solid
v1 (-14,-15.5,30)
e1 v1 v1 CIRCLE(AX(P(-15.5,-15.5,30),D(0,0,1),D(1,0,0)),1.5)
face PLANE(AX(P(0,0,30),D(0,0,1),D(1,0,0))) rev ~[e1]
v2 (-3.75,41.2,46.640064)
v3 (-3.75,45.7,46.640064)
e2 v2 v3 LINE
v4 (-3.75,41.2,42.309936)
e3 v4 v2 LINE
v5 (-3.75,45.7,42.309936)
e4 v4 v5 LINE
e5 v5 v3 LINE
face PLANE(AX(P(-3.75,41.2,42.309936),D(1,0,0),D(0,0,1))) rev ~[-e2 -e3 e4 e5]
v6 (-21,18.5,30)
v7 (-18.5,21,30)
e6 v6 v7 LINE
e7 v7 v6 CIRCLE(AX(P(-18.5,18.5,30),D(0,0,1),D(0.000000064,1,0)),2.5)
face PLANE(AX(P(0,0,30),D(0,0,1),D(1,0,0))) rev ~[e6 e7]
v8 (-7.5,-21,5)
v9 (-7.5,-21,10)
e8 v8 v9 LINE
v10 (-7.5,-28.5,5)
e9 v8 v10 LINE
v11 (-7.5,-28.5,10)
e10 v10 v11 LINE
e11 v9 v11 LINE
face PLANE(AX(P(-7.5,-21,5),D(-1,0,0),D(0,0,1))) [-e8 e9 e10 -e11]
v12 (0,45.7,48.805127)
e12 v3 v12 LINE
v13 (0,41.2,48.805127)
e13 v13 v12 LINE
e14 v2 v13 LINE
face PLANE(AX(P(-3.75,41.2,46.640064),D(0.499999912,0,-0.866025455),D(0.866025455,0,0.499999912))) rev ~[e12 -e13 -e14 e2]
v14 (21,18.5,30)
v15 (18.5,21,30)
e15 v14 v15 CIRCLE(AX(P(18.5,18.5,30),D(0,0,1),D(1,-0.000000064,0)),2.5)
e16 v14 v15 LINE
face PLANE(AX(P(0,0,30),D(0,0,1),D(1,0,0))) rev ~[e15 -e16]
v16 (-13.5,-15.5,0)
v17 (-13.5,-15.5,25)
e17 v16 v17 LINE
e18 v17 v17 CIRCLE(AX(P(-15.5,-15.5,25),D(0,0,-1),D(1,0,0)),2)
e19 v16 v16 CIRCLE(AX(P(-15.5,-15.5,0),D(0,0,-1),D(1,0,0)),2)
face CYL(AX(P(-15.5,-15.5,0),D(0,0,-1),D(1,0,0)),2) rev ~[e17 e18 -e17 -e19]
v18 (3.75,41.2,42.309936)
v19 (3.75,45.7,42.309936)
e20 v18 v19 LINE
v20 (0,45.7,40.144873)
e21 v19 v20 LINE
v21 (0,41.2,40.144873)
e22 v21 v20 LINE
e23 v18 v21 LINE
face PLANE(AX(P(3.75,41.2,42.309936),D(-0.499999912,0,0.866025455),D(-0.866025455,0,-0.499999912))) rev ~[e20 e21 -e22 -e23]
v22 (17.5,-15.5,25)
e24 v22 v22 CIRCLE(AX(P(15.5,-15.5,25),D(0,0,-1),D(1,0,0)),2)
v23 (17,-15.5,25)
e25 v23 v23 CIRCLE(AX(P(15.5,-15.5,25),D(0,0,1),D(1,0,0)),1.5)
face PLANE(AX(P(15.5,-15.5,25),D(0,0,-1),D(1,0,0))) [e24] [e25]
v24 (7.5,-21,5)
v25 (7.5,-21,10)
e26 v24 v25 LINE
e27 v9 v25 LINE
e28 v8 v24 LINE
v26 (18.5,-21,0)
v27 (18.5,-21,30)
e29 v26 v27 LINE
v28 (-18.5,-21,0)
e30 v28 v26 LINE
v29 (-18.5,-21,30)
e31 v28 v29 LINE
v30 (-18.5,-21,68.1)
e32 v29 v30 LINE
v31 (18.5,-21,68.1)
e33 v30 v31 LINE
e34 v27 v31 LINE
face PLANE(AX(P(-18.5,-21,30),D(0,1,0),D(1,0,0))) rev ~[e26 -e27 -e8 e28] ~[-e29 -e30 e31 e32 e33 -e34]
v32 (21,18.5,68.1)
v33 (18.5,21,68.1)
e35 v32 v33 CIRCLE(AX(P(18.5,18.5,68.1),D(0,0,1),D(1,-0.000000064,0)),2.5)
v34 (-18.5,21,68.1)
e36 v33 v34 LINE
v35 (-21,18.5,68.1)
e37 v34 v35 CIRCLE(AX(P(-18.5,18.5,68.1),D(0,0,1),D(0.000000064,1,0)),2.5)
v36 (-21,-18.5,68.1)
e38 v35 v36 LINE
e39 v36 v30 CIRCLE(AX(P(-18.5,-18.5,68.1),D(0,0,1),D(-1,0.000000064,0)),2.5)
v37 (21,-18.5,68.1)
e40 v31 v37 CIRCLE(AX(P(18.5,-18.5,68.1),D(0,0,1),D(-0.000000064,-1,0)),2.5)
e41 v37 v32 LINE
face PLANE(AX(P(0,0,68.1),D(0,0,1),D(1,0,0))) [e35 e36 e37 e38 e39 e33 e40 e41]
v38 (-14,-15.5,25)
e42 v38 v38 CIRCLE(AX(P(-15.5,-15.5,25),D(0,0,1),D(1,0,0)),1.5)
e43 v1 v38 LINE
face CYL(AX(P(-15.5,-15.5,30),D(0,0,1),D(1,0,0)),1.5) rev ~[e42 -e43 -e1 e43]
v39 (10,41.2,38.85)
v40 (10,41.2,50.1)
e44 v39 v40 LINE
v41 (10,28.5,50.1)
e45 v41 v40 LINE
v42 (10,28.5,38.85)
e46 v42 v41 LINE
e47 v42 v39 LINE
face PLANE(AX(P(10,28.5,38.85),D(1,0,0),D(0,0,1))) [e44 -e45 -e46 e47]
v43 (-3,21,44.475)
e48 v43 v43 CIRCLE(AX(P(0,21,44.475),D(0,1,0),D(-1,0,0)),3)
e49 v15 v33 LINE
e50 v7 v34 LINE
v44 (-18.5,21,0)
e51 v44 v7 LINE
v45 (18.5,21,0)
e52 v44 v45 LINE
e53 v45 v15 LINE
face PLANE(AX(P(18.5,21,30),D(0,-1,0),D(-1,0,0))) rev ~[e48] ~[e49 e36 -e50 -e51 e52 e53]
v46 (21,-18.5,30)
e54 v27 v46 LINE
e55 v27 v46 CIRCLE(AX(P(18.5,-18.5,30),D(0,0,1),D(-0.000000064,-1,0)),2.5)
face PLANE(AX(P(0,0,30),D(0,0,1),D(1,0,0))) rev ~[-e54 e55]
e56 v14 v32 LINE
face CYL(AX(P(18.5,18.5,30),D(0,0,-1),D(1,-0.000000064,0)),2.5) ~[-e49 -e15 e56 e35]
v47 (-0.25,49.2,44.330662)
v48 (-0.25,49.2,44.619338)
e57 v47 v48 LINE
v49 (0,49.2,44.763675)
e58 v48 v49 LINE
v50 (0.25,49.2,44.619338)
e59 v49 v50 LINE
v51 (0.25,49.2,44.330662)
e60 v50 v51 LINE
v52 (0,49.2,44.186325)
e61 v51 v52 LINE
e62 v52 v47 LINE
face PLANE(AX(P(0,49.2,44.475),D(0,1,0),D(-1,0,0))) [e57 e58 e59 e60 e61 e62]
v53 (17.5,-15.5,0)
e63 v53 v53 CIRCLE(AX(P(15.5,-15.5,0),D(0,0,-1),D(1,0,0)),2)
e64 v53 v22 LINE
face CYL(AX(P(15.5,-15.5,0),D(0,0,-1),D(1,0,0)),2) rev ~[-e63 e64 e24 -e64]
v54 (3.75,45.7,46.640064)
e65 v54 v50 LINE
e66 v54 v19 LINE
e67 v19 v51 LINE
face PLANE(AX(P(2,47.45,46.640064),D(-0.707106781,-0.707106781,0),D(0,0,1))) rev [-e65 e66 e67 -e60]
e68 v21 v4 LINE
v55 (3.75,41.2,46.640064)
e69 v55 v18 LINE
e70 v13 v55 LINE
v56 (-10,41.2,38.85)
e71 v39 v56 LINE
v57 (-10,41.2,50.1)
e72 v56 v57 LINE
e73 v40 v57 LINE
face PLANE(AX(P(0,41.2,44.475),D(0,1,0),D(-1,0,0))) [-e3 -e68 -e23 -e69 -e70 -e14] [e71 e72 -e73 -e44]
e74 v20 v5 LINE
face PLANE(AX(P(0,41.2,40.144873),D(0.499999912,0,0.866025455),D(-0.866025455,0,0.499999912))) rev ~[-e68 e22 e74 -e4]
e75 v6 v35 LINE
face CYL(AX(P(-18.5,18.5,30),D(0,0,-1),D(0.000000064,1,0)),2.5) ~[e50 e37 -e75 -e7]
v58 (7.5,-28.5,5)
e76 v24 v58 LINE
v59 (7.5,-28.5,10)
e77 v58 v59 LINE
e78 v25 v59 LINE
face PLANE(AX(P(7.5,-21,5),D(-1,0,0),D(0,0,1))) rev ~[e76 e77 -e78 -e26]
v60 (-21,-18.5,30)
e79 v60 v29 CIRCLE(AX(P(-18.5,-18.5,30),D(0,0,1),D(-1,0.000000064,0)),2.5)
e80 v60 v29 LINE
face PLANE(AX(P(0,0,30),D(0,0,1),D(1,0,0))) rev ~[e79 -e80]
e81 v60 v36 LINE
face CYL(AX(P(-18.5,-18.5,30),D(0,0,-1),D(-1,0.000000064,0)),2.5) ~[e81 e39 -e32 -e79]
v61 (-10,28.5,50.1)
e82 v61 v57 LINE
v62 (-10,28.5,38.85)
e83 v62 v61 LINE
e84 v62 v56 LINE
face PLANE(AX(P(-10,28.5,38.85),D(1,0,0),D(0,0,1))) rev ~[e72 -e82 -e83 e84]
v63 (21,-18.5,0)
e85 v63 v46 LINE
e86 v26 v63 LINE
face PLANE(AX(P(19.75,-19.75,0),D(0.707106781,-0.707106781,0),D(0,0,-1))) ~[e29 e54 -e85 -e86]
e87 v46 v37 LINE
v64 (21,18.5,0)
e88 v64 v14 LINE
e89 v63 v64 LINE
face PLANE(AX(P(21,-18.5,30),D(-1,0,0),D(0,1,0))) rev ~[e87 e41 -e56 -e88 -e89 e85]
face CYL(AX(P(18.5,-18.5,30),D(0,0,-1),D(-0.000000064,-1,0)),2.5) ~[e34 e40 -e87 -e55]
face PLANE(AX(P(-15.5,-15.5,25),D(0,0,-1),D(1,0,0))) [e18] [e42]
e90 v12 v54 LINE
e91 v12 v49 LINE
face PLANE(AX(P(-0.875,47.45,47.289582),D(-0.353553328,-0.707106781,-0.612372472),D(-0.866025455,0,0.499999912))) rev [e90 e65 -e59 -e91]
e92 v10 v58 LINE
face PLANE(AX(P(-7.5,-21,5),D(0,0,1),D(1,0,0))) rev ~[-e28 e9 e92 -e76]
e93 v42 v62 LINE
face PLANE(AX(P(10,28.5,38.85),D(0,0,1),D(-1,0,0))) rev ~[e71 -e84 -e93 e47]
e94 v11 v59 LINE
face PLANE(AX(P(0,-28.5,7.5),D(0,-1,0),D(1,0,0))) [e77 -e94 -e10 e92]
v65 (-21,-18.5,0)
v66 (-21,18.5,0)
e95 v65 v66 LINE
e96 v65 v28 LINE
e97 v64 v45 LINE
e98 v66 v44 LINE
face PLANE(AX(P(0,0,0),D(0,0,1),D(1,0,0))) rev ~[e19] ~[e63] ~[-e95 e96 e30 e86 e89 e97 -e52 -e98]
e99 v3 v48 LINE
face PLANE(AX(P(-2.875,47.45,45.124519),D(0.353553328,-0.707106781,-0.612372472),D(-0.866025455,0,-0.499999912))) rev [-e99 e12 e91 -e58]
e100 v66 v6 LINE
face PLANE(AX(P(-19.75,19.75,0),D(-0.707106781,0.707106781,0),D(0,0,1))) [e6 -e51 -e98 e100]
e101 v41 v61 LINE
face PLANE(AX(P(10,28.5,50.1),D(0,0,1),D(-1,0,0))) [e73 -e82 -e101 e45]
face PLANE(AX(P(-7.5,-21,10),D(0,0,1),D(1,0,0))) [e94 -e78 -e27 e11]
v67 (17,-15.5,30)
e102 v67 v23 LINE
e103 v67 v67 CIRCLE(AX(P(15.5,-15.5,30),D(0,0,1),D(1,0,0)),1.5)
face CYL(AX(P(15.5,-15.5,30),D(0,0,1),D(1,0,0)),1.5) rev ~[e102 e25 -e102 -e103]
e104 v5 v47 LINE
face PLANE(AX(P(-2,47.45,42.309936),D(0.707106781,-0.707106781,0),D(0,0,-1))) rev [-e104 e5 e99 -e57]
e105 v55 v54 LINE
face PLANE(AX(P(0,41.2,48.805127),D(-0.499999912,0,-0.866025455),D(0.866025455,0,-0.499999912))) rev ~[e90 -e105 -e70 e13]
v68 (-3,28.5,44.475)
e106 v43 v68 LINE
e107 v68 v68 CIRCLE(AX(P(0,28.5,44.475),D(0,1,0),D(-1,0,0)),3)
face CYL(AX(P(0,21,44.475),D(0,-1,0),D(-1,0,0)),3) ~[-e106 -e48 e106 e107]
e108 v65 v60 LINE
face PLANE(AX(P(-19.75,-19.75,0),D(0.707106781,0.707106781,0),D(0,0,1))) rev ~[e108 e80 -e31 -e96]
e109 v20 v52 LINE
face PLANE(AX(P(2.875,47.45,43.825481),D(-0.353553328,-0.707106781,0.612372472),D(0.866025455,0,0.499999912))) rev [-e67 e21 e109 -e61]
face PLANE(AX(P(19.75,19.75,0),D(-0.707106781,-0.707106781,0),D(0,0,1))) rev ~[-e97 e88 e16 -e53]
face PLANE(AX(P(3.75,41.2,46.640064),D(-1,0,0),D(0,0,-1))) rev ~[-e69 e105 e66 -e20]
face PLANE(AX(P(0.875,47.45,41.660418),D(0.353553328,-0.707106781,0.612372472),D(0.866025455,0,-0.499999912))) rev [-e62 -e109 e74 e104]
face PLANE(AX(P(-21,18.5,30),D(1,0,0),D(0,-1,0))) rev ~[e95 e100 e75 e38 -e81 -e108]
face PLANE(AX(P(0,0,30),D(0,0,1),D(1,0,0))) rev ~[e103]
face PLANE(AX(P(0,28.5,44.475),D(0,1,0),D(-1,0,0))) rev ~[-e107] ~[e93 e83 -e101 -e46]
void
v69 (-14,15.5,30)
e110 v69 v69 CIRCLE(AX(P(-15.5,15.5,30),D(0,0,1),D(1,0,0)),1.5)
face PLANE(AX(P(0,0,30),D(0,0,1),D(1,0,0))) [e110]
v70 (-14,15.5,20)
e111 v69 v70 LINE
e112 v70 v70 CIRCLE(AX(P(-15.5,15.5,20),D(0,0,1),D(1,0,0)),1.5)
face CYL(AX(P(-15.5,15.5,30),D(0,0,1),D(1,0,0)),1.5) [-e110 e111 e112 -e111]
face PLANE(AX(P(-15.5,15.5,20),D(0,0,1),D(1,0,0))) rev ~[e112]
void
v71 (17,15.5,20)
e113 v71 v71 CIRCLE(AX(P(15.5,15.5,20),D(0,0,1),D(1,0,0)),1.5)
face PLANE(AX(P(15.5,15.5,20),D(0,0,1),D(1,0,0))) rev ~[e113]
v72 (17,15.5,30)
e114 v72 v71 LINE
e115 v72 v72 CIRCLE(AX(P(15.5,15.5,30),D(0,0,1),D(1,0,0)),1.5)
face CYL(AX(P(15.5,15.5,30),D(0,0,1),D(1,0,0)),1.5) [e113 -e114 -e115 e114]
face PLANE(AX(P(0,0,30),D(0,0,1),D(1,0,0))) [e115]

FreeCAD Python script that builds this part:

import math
import FreeCAD as App
import Part
import Sketcher
from FreeCAD import Vector
Q = App.Units.Quantity


def edges_at(feature, points):
    """Names of the edges that pass closest to the given points."""
    edges = feature.Shape.Edges
    near = lambda p: min(range(len(edges)), key=lambda i: edges[i].distToShape(Part.Vertex(*p))[0])
    return sorted({f"Edge{near(p) + 1}" for p in points})


def add_polygon(sketch, points):
    """Adds a closed chain of lines whose ends are joined by coincident constraints."""
    first, n = sketch.GeometryCount, len(points)
    for a, b in zip(points, points[1:] + points[:1]):
        sketch.addGeometry(Part.LineSegment(App.Vector(*a, 0), App.Vector(*b, 0)), False)
    for i in range(n):
        sketch.addConstraint(Sketcher.Constraint("Coincident", first + i, 2, first + (i + 1) % n, 1))

doc = App.newDocument("Part")
body = doc.addObject("PartDesign::Body", "Body")

sketch1 = body.newObject("Sketcher::SketchObject", "Sketch")
sketch1.AttachmentSupport = (doc.getObject("XY_Plane"), [""])
sketch1.MapMode = "FlatFace"
add_polygon(sketch1, [(-21, 21), (-21, -21), (21, -21), (21, 21)])
sketch1.addConstraint(Sketcher.Constraint("Vertical", 0))
sketch1.addConstraint(Sketcher.Constraint("Horizontal", 1))
sketch1.addConstraint(Sketcher.Constraint("Vertical", 2))
sketch1.addConstraint(Sketcher.Constraint("Horizontal", 3))
sketch1.addConstraint(Sketcher.Constraint("Symmetric", 0, 2, 2, 2, -1, 1))
sketch1.addConstraint(Sketcher.Constraint("Equal", 3, 0))
sketch1.addConstraint(Sketcher.Constraint("DistanceX", 1, 1, 1, 2, Q("42 mm")))
pad1 = body.newObject("PartDesign::Pad", "Pad")
pad1.Profile = sketch1
pad1.Length = 30
doc.recompute()

chamfer = body.newObject("PartDesign::Chamfer", "Chamfer")
chamfer.Base = (pad1, edges_at(pad1, [
    (-21, -21, 15),
    (21, -21, 15),
    (21, 21, 15),
    (-21, 21, 15),
]))
chamfer.Size = 2.5

sketch2 = body.newObject("Sketcher::SketchObject", "Sketch001")
sketch2.AttachmentSupport = (doc.getObject("XY_Plane"), [""])
sketch2.MapMode = "FlatFace"
sketch2.AttachmentOffset = App.Placement(Vector(0, 0, 30), App.Rotation())
sketch2.addGeometry(Part.Circle(Vector(-15.5, 15.5, 0), Vector(0, 0, 1), 1.5), False)
sketch2.addGeometry(Part.Circle(Vector(15.5, 15.5, 0), Vector(0, 0, 1), 1.5), False)
sketch2.addGeometry(Part.Circle(Vector(15.5, -15.5, 0), Vector(0, 0, 1), 1.5), False)
sketch2.addGeometry(Part.Circle(Vector(-15.5, -15.5, 0), Vector(0, 0, 1), 1.5), False)
sketch2.addConstraint(Sketcher.Constraint("Equal", 0, 1))
sketch2.addConstraint(Sketcher.Constraint("Equal", 1, 2))
sketch2.addConstraint(Sketcher.Constraint("Equal", 2, 3))
sketch2.addConstraint(Sketcher.Constraint("Symmetric", 0, 3, 2, 3, -1, 1))
sketch2.addConstraint(Sketcher.Constraint("Symmetric", 1, 3, 3, 3, -1, 1))
sketch2.addConstraint(Sketcher.Constraint("Symmetric", 0, 3, 1, 3, -2))
sketch2.addConstraint(Sketcher.Constraint("Diameter", 0, Q("3 mm")))
sketch2.addConstraint(Sketcher.Constraint("DistanceX", 0, 3, 1, 3, Q("31 mm")))
sketch2.addConstraint(Sketcher.Constraint("DistanceY", 2, 3, 1, 3, Q("31 mm")))
pocket1 = body.newObject("PartDesign::Pocket", "Pocket")
pocket1.Profile = sketch2
pocket1.Length = 10

sketch3 = body.newObject("Sketcher::SketchObject", "Sketch002")
sketch3.AttachmentSupport = (doc.getObject("XY_Plane"), [""])
sketch3.MapMode = "FlatFace"
sketch3.AttachmentOffset = App.Placement(Vector(0, 0, 30), App.Rotation())
sketch3.addGeometry(Part.Circle(Vector(0, 0, 0), Vector(0, 0, 1), 11), False)
sketch3.addConstraint(Sketcher.Constraint("Coincident", 0, 3, -1, 1))
sketch3.addConstraint(Sketcher.Constraint("Diameter", 0, Q("22 mm")))
pad2 = body.newObject("PartDesign::Pad", "Pad001")
pad2.Profile = sketch3
pad2.Length = 2

sketch4 = body.newObject("Sketcher::SketchObject", "Sketch003")
sketch4.AttachmentSupport = (doc.getObject("XY_Plane"), [""])
sketch4.MapMode = "FlatFace"
sketch4.AttachmentOffset = App.Placement(Vector(0, 0, 32), App.Rotation())
sketch4.addGeometry(Part.LineSegment(Vector(2.193171, 1.2, 0), Vector(-2.193171, 1.2, 0)), False)
sketch4.addGeometry(Part.ArcOfCircle(Part.Circle(Vector(0, 0, 0), Vector(0, 0, 1), 2.5), math.radians(151.314593), math.radians(388.685407)), False)
sketch4.addConstraint(Sketcher.Constraint("Coincident", 0, 1, 1, 2))
sketch4.addConstraint(Sketcher.Constraint("Coincident", 1, 1, 0, 2))
sketch4.addConstraint(Sketcher.Constraint("Horizontal", 0))
sketch4.addConstraint(Sketcher.Constraint("Coincident", 1, 3, -1, 1))
sketch4.addConstraint(Sketcher.Constraint("Radius", 1, Q("2.5 mm")))
sketch4.addConstraint(Sketcher.Constraint("DistanceY", -1, 1, 0, 1, Q("1.2 mm")))
pad3 = body.newObject("PartDesign::Pad", "Pad002")
pad3.Profile = sketch4
pad3.Length = 24

sketch5 = body.newObject("Sketcher::SketchObject", "Sketch004")
sketch5.AttachmentSupport = (doc.getObject("XZ_Plane"), [""])
sketch5.MapMode = "FlatFace"
sketch5.AttachmentOffset = App.Placement(Vector(0, 0, 21), App.Rotation())
add_polygon(sketch5, [(-7.5, 10), (-7.5, 5), (7.5, 5), (7.5, 10)])
sketch5.addConstraint(Sketcher.Constraint("Vertical", 0))
sketch5.addConstraint(Sketcher.Constraint("Horizontal", 1))
sketch5.addConstraint(Sketcher.Constraint("Vertical", 2))
sketch5.addConstraint(Sketcher.Constraint("Horizontal", 3))
sketch5.addConstraint(Sketcher.Constraint("DistanceX", 1, 1, 1, 2, Q("15 mm")))
sketch5.addConstraint(Sketcher.Constraint("DistanceY", 0, 2, 0, 1, Q("5 mm")))
sketch5.addConstraint(Sketcher.Constraint("DistanceY", -1, 1, 0, 2, Q("5 mm")))
sketch5.addConstraint(Sketcher.Constraint("DistanceX", 0, 2, -1, 1, Q("7.5 mm")))
pad4 = body.newObject("PartDesign::Pad", "Pad003")
pad4.Profile = sketch5
pad4.Length = 7.5

sketch6 = body.newObject("Sketcher::SketchObject", "Sketch005")
sketch6.AttachmentSupport = (doc.getObject("XY_Plane"), [""])
sketch6.MapMode = "FlatFace"
sketch6.AttachmentOffset = App.Placement(Vector(0, 0, 30), App.Rotation())
sketch6.addGeometry(Part.LineSegment(Vector(-18.5, -21, 0), Vector(18.5, -21, 0)), False)
sketch6.addGeometry(Part.ArcOfCircle(Part.Circle(Vector(18.5, -18.5, 0), Vector(0, 0, 1), 2.5), math.radians(-90.000004), math.radians(0.000004)), False)
sketch6.addGeometry(Part.LineSegment(Vector(21, -18.5, 0), Vector(21, 18.5, 0)), False)
sketch6.addGeometry(Part.ArcOfCircle(Part.Circle(Vector(18.5, 18.5, 0), Vector(0, 0, 1), 2.5), math.radians(-0.000004), math.radians(90.000004)), False)
sketch6.addGeometry(Part.LineSegment(Vector(18.5, 21, 0), Vector(-18.5, 21, 0)), False)
sketch6.addGeometry(Part.ArcOfCircle(Part.Circle(Vector(-18.5, 18.5, 0), Vector(0, 0, 1), 2.5), math.radians(89.999996), math.radians(180.000004)), False)
sketch6.addGeometry(Part.LineSegment(Vector(-21, 18.5, 0), Vector(-21, -18.5, 0)), False)
sketch6.addGeometry(Part.ArcOfCircle(Part.Circle(Vector(-18.5, -18.5, 0), Vector(0, 0, 1), 2.5), math.radians(179.999996), math.radians(270.000004)), False)
sketch6.addConstraint(Sketcher.Constraint("Tangent", 0, 2, 1, 1))
sketch6.addConstraint(Sketcher.Constraint("Tangent", 1, 2, 2, 1))
sketch6.addConstraint(Sketcher.Constraint("Tangent", 2, 2, 3, 1))
sketch6.addConstraint(Sketcher.Constraint("Tangent", 3, 2, 4, 1))
sketch6.addConstraint(Sketcher.Constraint("Tangent", 4, 2, 5, 1))
sketch6.addConstraint(Sketcher.Constraint("Tangent", 5, 2, 6, 1))
sketch6.addConstraint(Sketcher.Constraint("Tangent", 6, 2, 7, 1))
sketch6.addConstraint(Sketcher.Constraint("Tangent", 7, 2, 0, 1))
sketch6.addConstraint(Sketcher.Constraint("Horizontal", 0))
sketch6.addConstraint(Sketcher.Constraint("Vertical", 2))
sketch6.addConstraint(Sketcher.Constraint("Horizontal", 4))
sketch6.addConstraint(Sketcher.Constraint("Vertical", 6))
sketch6.addConstraint(Sketcher.Constraint("Equal", 1, 3))
sketch6.addConstraint(Sketcher.Constraint("Equal", 3, 5))
sketch6.addConstraint(Sketcher.Constraint("Equal", 5, 7))
sketch6.addConstraint(Sketcher.Constraint("Symmetric", 1, 3, 5, 3, -1, 1))
sketch6.addConstraint(Sketcher.Constraint("Equal", 4, 2))
sketch6.addConstraint(Sketcher.Constraint("Radius", 1, Q("2.5 mm")))
sketch6.addConstraint(Sketcher.Constraint("DistanceX", 0, 1, 0, 2, Q("37 mm")))
pad5 = body.newObject("PartDesign::Pad", "Pad004")
pad5.Profile = sketch6
pad5.Length = 38.1

sketch7 = body.newObject("Sketcher::SketchObject", "Sketch006")
sketch7.AttachmentSupport = (doc.getObject("XZ_Plane"), [""])
sketch7.MapMode = "FlatFace"
sketch7.AttachmentOffset = App.Placement(Vector(0, 0, -21), App.Rotation())
sketch7.addGeometry(Part.Circle(Vector(0, 44.475, 0), Vector(0, 0, 1), 3), False)
sketch7.addConstraint(Sketcher.Constraint("PointOnObject", 0, 3, -2))
sketch7.addConstraint(Sketcher.Constraint("Diameter", 0, Q("6 mm")))
sketch7.addConstraint(Sketcher.Constraint("DistanceY", -1, 1, 0, 3, Q("44.475 mm")))
pad6 = body.newObject("PartDesign::Pad", "Pad005")
pad6.Profile = sketch7
pad6.Length = 7.5
pad6.Reversed = True

sketch8 = body.newObject("Sketcher::SketchObject", "Sketch007")
sketch8.AttachmentSupport = (doc.getObject("XZ_Plane"), [""])
sketch8.MapMode = "FlatFace"
sketch8.AttachmentOffset = App.Placement(Vector(0, 0, -28.5), App.Rotation())
add_polygon(sketch8, [(10, 50.1), (10, 38.85), (-10, 38.85), (-10, 50.1)])
sketch8.addConstraint(Sketcher.Constraint("Vertical", 0))
sketch8.addConstraint(Sketcher.Constraint("Horizontal", 1))
sketch8.addConstraint(Sketcher.Constraint("Vertical", 2))
sketch8.addConstraint(Sketcher.Constraint("Horizontal", 3))
sketch8.addConstraint(Sketcher.Constraint("DistanceX", 1, 2, 1, 1, Q("20 mm")))
sketch8.addConstraint(Sketcher.Constraint("DistanceX", -1, 1, 0, 2, Q("10 mm")))
sketch8.addConstraint(Sketcher.Constraint("DistanceY", 0, 2, 0, 1, Q("11.25 mm")))
sketch8.addConstraint(Sketcher.Constraint("DistanceY", -1, 1, 2, 2, Q("50.1 mm")))
pad7 = body.newObject("PartDesign::Pad", "Pad006")
pad7.Profile = sketch8
pad7.Length = 12.7
pad7.Reversed = True

sketch9 = body.newObject("Sketcher::SketchObject", "Sketch008")
sketch9.AttachmentSupport = (doc.getObject("XZ_Plane"), [""])
sketch9.MapMode = "FlatFace"
sketch9.AttachmentOffset = App.Placement(Vector(0, 0, -41.2), App.Rotation())
add_polygon(sketch9, [(-3.75, 42.309936), (-3.75, 46.640064), (0, 48.805127), (3.75, 46.640064), (3.75, 42.309936), (0, 40.144873)])
sketch9.addConstraint(Sketcher.Constraint("Vertical", 0))
sketch9.addConstraint(Sketcher.Constraint("Vertical", 3))
sketch9.addConstraint(Sketcher.Constraint("Symmetric", 0, 2, 2, 2, -2))
sketch9.addConstraint(Sketcher.Constraint("PointOnObject", 1, 2, -2))
sketch9.addConstraint(Sketcher.Constraint("PointOnObject", 4, 2, -2))
sketch9.addConstraint(Sketcher.Constraint("Parallel", 1, 4))
sketch9.addConstraint(Sketcher.Constraint("Parallel", 2, 5))
sketch9.addConstraint(Sketcher.Constraint("Angle", 1, Q("29.999994 deg")))
sketch9.addConstraint(Sketcher.Constraint("DistanceX", 0, 2, 2, 2, Q("7.5 mm")))
sketch9.addConstraint(Sketcher.Constraint("DistanceY", 0, 1, 0, 2, Q("4.330128 mm")))
sketch9.addConstraint(Sketcher.Constraint("DistanceY", -1, 1, 0, 2, Q("46.640064 mm")))
pad8 = body.newObject("PartDesign::Pad", "Pad007")
pad8.Profile = sketch9
pad8.Length = 8
pad8.Reversed = True
doc.recompute()

chamfer2 = body.newObject("PartDesign::Chamfer", "Chamfer001")
chamfer2.Base = (pad8, edges_at(pad8, [
    (-1.875, 49.2, 41.227),
    (1.875, 49.2, 47.723),
    (-3.75, 49.2, 44.475),
    (1.875, 49.2, 41.227),
    (3.75, 49.2, 44.475),
    (-1.875, 49.2, 47.723),
]))
chamfer2.Size = 3.5

sketch10 = body.newObject("Sketcher::SketchObject", "Sketch009")
sketch10.AttachmentSupport = (doc.getObject("XY_Plane"), [""])
sketch10.MapMode = "FlatFace"
sketch10.addGeometry(Part.Circle(Vector(-15.5, -15.5, 0), Vector(0, 0, 1), 2), False)
sketch10.addGeometry(Part.Circle(Vector(15.5, -15.5, 0), Vector(0, 0, 1), 2), False)
sketch10.addConstraint(Sketcher.Constraint("Equal", 0, 1))
sketch10.addConstraint(Sketcher.Constraint("Symmetric", 0, 3, 1, 3, -2))
sketch10.addConstraint(Sketcher.Constraint("Diameter", 0, Q("4 mm")))
sketch10.addConstraint(Sketcher.Constraint("DistanceX", 0, 3, 1, 3, Q("31 mm")))
sketch10.addConstraint(Sketcher.Constraint("DistanceY", 0, 3, -1, 1, Q("15.5 mm")))
pocket2 = body.newObject("PartDesign::Pocket", "Pocket001")
pocket2.Profile = sketch10
pocket2.Length = 25
pocket2.Reversed = True

doc.recompute()
